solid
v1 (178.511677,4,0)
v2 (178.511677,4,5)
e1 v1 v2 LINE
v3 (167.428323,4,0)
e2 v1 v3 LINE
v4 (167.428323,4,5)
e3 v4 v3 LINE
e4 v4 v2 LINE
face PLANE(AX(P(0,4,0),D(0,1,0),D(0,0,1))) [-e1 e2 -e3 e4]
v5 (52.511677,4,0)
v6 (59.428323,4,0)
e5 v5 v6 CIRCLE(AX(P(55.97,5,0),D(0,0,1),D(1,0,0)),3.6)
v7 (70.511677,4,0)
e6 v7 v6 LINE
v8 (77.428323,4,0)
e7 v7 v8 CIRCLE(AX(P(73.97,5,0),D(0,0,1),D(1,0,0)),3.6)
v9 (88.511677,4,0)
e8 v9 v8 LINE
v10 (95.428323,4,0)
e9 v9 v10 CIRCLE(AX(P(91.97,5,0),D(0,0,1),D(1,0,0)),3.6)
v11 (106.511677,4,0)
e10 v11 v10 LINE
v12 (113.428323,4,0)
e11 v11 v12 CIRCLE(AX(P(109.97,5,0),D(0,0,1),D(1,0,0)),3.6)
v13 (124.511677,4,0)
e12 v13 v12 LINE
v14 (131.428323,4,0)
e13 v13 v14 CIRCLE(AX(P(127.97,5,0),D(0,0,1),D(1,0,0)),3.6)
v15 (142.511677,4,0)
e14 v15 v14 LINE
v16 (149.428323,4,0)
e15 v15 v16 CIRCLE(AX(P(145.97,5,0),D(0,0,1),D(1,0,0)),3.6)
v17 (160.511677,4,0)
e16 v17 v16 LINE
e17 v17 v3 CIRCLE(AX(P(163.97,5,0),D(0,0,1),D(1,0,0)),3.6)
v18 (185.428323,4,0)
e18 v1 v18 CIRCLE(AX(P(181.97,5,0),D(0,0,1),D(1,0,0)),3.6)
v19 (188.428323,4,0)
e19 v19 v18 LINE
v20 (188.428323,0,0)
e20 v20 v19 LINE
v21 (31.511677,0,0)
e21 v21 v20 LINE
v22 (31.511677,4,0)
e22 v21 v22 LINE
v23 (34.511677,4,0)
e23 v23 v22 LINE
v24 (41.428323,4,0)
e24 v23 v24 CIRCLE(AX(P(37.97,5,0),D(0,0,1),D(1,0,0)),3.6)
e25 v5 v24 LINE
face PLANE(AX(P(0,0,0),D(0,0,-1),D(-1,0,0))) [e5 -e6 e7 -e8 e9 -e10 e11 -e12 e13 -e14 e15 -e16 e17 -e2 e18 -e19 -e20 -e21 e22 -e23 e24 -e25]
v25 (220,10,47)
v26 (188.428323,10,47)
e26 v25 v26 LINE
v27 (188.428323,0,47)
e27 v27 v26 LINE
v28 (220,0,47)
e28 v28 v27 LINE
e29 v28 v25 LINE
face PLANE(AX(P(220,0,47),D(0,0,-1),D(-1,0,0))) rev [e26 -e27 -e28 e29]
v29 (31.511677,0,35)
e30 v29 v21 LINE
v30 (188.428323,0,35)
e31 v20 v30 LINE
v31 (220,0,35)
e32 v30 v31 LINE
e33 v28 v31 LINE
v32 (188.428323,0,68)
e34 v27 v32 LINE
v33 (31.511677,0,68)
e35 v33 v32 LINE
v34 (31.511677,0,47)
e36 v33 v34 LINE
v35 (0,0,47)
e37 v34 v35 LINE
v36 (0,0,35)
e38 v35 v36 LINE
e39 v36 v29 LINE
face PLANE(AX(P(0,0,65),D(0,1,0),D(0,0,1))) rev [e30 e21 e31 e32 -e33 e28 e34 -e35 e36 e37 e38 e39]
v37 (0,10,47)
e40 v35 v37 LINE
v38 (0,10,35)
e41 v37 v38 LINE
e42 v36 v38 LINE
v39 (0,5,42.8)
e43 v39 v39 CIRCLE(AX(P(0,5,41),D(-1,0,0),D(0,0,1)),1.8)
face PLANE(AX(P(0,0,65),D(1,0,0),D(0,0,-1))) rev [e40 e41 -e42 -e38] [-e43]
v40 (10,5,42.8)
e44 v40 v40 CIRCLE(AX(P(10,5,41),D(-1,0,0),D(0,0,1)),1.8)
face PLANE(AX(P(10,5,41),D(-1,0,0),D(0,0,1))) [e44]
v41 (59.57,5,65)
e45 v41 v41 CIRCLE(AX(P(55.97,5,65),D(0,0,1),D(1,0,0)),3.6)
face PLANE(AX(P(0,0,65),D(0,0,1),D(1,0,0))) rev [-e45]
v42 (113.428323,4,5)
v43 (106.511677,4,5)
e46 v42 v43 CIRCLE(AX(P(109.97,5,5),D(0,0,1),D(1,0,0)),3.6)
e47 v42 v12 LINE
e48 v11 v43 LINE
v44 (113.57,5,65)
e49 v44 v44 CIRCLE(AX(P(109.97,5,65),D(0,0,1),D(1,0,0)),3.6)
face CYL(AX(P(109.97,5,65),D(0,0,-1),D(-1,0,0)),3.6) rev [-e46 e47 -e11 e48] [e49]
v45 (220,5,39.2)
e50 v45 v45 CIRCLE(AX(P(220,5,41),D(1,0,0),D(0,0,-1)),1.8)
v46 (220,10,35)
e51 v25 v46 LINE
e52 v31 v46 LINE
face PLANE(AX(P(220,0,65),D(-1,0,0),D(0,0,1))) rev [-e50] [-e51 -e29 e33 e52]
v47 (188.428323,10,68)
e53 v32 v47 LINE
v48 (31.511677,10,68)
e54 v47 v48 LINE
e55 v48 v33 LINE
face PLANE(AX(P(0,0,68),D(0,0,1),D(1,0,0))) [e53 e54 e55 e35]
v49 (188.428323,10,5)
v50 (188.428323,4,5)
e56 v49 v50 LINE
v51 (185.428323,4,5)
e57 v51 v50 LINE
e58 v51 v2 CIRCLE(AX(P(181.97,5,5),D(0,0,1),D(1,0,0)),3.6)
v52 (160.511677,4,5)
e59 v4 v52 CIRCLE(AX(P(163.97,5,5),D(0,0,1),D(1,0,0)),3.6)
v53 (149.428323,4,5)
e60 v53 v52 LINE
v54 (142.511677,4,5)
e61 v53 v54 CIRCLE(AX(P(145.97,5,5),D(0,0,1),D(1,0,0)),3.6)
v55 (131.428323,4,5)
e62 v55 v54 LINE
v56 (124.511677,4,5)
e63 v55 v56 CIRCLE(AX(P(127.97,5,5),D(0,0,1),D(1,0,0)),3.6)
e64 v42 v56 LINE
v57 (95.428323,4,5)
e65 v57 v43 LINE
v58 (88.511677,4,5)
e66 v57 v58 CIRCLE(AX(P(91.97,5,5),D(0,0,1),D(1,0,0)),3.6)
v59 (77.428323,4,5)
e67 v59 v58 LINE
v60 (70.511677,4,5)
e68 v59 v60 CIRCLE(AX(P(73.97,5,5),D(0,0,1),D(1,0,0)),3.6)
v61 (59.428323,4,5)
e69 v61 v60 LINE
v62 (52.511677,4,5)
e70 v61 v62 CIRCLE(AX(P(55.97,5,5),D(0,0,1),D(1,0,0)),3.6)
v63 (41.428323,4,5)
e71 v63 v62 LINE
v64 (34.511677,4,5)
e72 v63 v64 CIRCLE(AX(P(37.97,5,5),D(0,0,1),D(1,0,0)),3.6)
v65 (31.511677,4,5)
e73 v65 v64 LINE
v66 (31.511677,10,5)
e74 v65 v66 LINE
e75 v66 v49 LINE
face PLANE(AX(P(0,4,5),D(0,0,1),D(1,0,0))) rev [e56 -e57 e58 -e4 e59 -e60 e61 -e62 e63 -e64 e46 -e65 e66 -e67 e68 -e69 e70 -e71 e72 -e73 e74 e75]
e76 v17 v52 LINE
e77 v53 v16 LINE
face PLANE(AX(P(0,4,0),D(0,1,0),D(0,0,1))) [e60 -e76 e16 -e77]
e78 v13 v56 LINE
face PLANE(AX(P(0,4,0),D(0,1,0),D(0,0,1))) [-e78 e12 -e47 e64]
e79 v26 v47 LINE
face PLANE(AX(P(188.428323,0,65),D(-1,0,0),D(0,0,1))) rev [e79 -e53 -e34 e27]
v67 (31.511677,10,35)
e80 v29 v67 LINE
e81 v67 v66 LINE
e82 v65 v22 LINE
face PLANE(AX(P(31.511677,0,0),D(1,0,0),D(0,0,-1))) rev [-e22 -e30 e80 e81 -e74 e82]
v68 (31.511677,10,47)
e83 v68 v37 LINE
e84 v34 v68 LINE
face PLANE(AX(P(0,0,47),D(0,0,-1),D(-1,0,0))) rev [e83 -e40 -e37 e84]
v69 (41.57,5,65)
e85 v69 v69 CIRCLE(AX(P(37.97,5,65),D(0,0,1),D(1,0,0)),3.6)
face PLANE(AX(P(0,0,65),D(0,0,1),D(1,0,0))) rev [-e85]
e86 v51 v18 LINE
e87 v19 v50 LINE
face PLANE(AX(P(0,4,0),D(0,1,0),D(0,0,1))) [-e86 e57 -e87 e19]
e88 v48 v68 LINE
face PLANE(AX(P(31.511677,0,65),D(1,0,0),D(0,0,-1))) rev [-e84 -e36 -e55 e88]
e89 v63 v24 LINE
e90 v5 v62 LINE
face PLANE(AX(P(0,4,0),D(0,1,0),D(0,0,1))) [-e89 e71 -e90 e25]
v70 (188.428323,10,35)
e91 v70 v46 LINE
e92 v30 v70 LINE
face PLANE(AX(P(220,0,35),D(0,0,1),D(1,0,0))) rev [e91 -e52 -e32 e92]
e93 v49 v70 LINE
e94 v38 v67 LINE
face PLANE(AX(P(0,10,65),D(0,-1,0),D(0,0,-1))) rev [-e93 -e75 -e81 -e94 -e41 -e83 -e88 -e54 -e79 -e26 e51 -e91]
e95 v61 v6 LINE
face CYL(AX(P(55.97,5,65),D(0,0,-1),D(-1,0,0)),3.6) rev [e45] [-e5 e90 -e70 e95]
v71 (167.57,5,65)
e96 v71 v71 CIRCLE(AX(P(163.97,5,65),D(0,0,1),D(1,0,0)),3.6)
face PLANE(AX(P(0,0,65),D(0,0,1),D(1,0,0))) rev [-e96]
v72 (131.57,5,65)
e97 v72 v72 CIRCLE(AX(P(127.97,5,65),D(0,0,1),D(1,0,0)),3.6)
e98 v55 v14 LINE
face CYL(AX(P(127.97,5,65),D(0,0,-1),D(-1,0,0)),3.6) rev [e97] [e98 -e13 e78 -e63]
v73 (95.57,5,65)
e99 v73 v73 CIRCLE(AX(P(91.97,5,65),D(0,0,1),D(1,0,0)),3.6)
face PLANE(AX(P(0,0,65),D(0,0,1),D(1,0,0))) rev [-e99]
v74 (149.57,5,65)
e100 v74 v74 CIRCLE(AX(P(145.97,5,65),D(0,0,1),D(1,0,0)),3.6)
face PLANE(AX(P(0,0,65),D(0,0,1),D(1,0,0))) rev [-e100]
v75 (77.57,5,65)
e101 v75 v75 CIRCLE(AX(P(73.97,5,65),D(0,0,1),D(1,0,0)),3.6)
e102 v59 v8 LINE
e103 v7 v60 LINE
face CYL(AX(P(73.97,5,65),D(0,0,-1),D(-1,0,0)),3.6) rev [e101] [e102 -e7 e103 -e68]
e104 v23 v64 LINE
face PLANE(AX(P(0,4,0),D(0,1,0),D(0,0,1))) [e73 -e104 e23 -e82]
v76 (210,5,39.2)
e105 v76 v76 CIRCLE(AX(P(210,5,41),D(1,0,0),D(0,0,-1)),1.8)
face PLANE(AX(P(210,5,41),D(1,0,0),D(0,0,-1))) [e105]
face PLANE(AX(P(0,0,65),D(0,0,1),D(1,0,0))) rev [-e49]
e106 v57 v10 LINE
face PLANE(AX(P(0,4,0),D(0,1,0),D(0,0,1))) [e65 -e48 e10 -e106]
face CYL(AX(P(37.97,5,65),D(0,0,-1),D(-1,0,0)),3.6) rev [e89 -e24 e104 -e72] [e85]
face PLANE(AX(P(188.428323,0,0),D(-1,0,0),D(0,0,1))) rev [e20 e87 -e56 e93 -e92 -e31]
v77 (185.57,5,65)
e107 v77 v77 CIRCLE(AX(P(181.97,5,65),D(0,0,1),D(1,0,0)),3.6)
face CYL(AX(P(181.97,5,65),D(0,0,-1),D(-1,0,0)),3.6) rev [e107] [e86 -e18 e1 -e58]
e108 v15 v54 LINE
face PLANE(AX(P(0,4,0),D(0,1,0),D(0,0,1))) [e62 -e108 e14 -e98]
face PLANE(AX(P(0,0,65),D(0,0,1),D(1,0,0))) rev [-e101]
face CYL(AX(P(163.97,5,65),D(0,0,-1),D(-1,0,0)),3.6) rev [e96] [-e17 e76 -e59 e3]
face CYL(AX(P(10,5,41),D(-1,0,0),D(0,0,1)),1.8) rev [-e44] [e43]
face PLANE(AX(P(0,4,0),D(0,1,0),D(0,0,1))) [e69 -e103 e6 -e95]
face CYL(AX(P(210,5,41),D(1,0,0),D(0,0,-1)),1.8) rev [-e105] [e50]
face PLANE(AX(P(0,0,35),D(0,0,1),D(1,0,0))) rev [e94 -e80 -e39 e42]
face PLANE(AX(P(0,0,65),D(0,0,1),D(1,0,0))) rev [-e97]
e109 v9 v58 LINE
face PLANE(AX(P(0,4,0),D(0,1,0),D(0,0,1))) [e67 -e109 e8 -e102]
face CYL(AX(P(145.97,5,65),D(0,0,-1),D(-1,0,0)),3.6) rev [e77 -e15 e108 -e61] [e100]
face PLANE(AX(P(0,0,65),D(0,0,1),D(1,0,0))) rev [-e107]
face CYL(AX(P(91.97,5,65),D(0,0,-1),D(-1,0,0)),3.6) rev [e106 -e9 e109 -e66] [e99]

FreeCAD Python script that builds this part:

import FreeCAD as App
import Part
import Sketcher

V = App.Vector
Q = App.Units.Quantity

doc = App.newDocument("Part")
body = doc.addObject("PartDesign::Body", "Body")

# Sketch on XY plane
sketch1 = body.newObject("Sketcher::SketchObject", "Sketch")
sketch1.AttachmentSupport = (doc.getObject("XY_Plane"), [""])
sketch1.MapMode = "FlatFace"
sketch1.addGeometry(Part.LineSegment(V(0, 10, 0), V(0, 0, 0)), False)
sketch1.addGeometry(Part.LineSegment(V(0, 0, 0), V(220, 0, 0)), False)
sketch1.addGeometry(Part.LineSegment(V(220, 0, 0), V(220, 10, 0)), False)
sketch1.addGeometry(Part.LineSegment(V(220, 10, 0), V(0, 10, 0)), False)
sketch1.addGeometry(Part.Circle(V(37.97, 5, 0), V(0, 0, 1), 3.6), False)
sketch1.addGeometry(Part.Circle(V(55.97, 5, 0), V(0, 0, 1), 3.6), False)
sketch1.addGeometry(Part.Circle(V(73.97, 5, 0), V(0, 0, 1), 3.6), False)
sketch1.addGeometry(Part.Circle(V(91.97, 5, 0), V(0, 0, 1), 3.6), False)
sketch1.addGeometry(Part.Circle(V(109.97, 5, 0), V(0, 0, 1), 3.6), False)
sketch1.addGeometry(Part.Circle(V(127.97, 5, 0), V(0, 0, 1), 3.6), False)
sketch1.addGeometry(Part.Circle(V(145.97, 5, 0), V(0, 0, 1), 3.6), False)
sketch1.addGeometry(Part.Circle(V(163.97, 5, 0), V(0, 0, 1), 3.6), False)
sketch1.addGeometry(Part.Circle(V(181.97, 5, 0), V(0, 0, 1), 3.6), False)
sketch1.addConstraint(Sketcher.Constraint("Coincident", 0, 2, 1, 1))
sketch1.addConstraint(Sketcher.Constraint("Coincident", 1, 2, 2, 1))
sketch1.addConstraint(Sketcher.Constraint("Coincident", 2, 2, 3, 1))
sketch1.addConstraint(Sketcher.Constraint("Coincident", 3, 2, 0, 1))
sketch1.addConstraint(Sketcher.Constraint("Vertical", 0))
sketch1.addConstraint(Sketcher.Constraint("Horizontal", 1))
sketch1.addConstraint(Sketcher.Constraint("Vertical", 2))
sketch1.addConstraint(Sketcher.Constraint("Horizontal", 3))
sketch1.addConstraint(Sketcher.Constraint("Coincident", 0, 2, -1, 1))
sketch1.addConstraint(Sketcher.Constraint("Equal", 4, 5))
sketch1.addConstraint(Sketcher.Constraint("Equal", 5, 6))
sketch1.addConstraint(Sketcher.Constraint("Equal", 6, 7))
sketch1.addConstraint(Sketcher.Constraint("Equal", 7, 8))
sketch1.addConstraint(Sketcher.Constraint("Equal", 8, 9))
sketch1.addConstraint(Sketcher.Constraint("Equal", 9, 10))
sketch1.addConstraint(Sketcher.Constraint("Equal", 10, 11))
sketch1.addConstraint(Sketcher.Constraint("Equal", 11, 12))
sketch1.addConstraint(Sketcher.Constraint("Horizontal", 4, 3, 5, 3))
sketch1.addConstraint(Sketcher.Constraint("Horizontal", 5, 3, 6, 3))
sketch1.addConstraint(Sketcher.Constraint("Horizontal", 6, 3, 7, 3))
sketch1.addConstraint(Sketcher.Constraint("Horizontal", 7, 3, 8, 3))
sketch1.addConstraint(Sketcher.Constraint("Horizontal", 8, 3, 9, 3))
sketch1.addConstraint(Sketcher.Constraint("Horizontal", 9, 3, 10, 3))
sketch1.addConstraint(Sketcher.Constraint("Horizontal", 10, 3, 11, 3))
sketch1.addConstraint(Sketcher.Constraint("Horizontal", 11, 3, 12, 3))
sketch1.addConstraint(Sketcher.Constraint("Diameter", 4, Q("7.2 mm")))
sketch1.addConstraint(Sketcher.Constraint("DistanceX", 1, 1, 1, 2, Q("220 mm")))
sketch1.addConstraint(Sketcher.Constraint("DistanceY", 0, 2, 0, 1, Q("10 mm")))
sketch1.addConstraint(Sketcher.Constraint("DistanceY", -1, 1, 4, 3, Q("5 mm")))
sketch1.addConstraint(Sketcher.Constraint("DistanceX", 4, 3, 5, 3, Q("18 mm")))
sketch1.addConstraint(Sketcher.Constraint("DistanceX", 5, 3, 6, 3, Q("18 mm")))
sketch1.addConstraint(Sketcher.Constraint("DistanceX", 6, 3, 7, 3, Q("18 mm")))
sketch1.addConstraint(Sketcher.Constraint("DistanceX", 7, 3, 8, 3, Q("18 mm")))
sketch1.addConstraint(Sketcher.Constraint("DistanceX", 8, 3, 9, 3, Q("18 mm")))
sketch1.addConstraint(Sketcher.Constraint("DistanceX", 9, 3, 10, 3, Q("18 mm")))
sketch1.addConstraint(Sketcher.Constraint("DistanceX", 10, 3, 11, 3, Q("18 mm")))
sketch1.addConstraint(Sketcher.Constraint("DistanceX", 11, 3, 12, 3, Q("18 mm")))
sketch1.addConstraint(Sketcher.Constraint("DistanceX", -1, 1, 4, 3, Q("37.97 mm")))
pad1 = body.newObject("PartDesign::Pad", "Pad")
pad1.Profile = sketch1
pad1.Length = 65

# Sketch on XZ plane
sketch2 = body.newObject("Sketcher::SketchObject", "Sketch001")
sketch2.AttachmentSupport = (doc.getObject("XZ_Plane"), [""])
sketch2.MapMode = "FlatFace"
sketch2.AttachmentOffset = App.Placement(V(0, 0, -10), App.Rotation())
sketch2.addGeometry(Part.LineSegment(V(0, 0, 0), V(0, 5, 0)), False)
sketch2.addGeometry(Part.LineSegment(V(0, 5, 0), V(220, 5, 0)), False)
sketch2.addGeometry(Part.LineSegment(V(220, 5, 0), V(220, 0, 0)), False)
sketch2.addGeometry(Part.LineSegment(V(220, 0, 0), V(0, 0, 0)), False)
sketch2.addConstraint(Sketcher.Constraint("Coincident", 0, 2, 1, 1))
sketch2.addConstraint(Sketcher.Constraint("Coincident", 1, 2, 2, 1))
sketch2.addConstraint(Sketcher.Constraint("Coincident", 2, 2, 3, 1))
sketch2.addConstraint(Sketcher.Constraint("Coincident", 3, 2, 0, 1))
sketch2.addConstraint(Sketcher.Constraint("Vertical", 0))
sketch2.addConstraint(Sketcher.Constraint("Horizontal", 1))
sketch2.addConstraint(Sketcher.Constraint("Vertical", 2))
sketch2.addConstraint(Sketcher.Constraint("Horizontal", 3))
sketch2.addConstraint(Sketcher.Constraint("Coincident", 3, 2, -1, 1))
sketch2.addConstraint(Sketcher.Constraint("DistanceX", 1, 1, 1, 2, Q("220 mm")))
sketch2.addConstraint(Sketcher.Constraint("DistanceY", 0, 1, 0, 2, Q("5 mm")))
pocket1 = body.newObject("PartDesign::Pocket", "Pocket")
pocket1.Profile = sketch2
pocket1.Length = 6
pocket1.Reversed = True

# Sketch on XZ plane
sketch3 = body.newObject("Sketcher::SketchObject", "Sketch002")
sketch3.AttachmentSupport = (doc.getObject("XZ_Plane"), [""])
sketch3.MapMode = "FlatFace"
sketch3.AttachmentOffset = App.Placement(V(0, 0, -10), App.Rotation())
sketch3.addGeometry(Part.LineSegment(V(0, 0, 0), V(0, 35, 0)), False)
sketch3.addGeometry(Part.LineSegment(V(0, 35, 0), V(31.511677, 35, 0)), False)
sketch3.addGeometry(Part.LineSegment(V(31.511677, 35, 0), V(31.511677, 0, 0)), False)
sketch3.addGeometry(Part.LineSegment(V(31.511677, 0, 0), V(0, 0, 0)), False)
sketch3.addGeometry(Part.LineSegment(V(0, 47, 0), V(0, 65, 0)), False)
sketch3.addGeometry(Part.LineSegment(V(0, 65, 0), V(31.511677, 65, 0)), False)
sketch3.addGeometry(Part.LineSegment(V(31.511677, 65, 0), V(31.511677, 47, 0)), False)
sketch3.addGeometry(Part.LineSegment(V(31.511677, 47, 0), V(0, 47, 0)), False)
sketch3.addGeometry(Part.LineSegment(V(188.428323, 0, 0), V(188.428323, 35, 0)), False)
sketch3.addGeometry(Part.LineSegment(V(188.428323, 35, 0), V(220, 35, 0)), False)
sketch3.addGeometry(Part.LineSegment(V(220, 35, 0), V(220, 0, 0)), False)
sketch3.addGeometry(Part.LineSegment(V(220, 0, 0), V(188.428323, 0, 0)), False)
sketch3.addGeometry(Part.LineSegment(V(188.428323, 47, 0), V(188.428323, 65, 0)), False)
sketch3.addGeometry(Part.LineSegment(V(188.428323, 65, 0), V(220, 65, 0)), False)
sketch3.addGeometry(Part.LineSegment(V(220, 65, 0), V(220, 47, 0)), False)
sketch3.addGeometry(Part.LineSegment(V(220, 47, 0), V(188.428323, 47, 0)), False)
sketch3.addConstraint(Sketcher.Constraint("Coincident", 0, 2, 1, 1))
sketch3.addConstraint(Sketcher.Constraint("Coincident", 1, 2, 2, 1))
sketch3.addConstraint(Sketcher.Constraint("Coincident", 2, 2, 3, 1))
sketch3.addConstraint(Sketcher.Constraint("Coincident", 3, 2, 0, 1))
sketch3.addConstraint(Sketcher.Constraint("Coincident", 4, 2, 5, 1))
sketch3.addConstraint(Sketcher.Constraint("Coincident", 5, 2, 6, 1))
sketch3.addConstraint(Sketcher.Constraint("Coincident", 6, 2, 7, 1))
sketch3.addConstraint(Sketcher.Constraint("Coincident", 7, 2, 4, 1))
sketch3.addConstraint(Sketcher.Constraint("Coincident", 8, 2, 9, 1))
sketch3.addConstraint(Sketcher.Constraint("Coincident", 9, 2, 10, 1))
sketch3.addConstraint(Sketcher.Constraint("Coincident", 10, 2, 11, 1))
sketch3.addConstraint(Sketcher.Constraint("Coincident", 11, 2, 8, 1))
sketch3.addConstraint(Sketcher.Constraint("Coincident", 12, 2, 13, 1))
sketch3.addConstraint(Sketcher.Constraint("Coincident", 13, 2, 14, 1))
sketch3.addConstraint(Sketcher.Constraint("Coincident", 14, 2, 15, 1))
sketch3.addConstraint(Sketcher.Constraint("Coincident", 15, 2, 12, 1))
sketch3.addConstraint(Sketcher.Constraint("Vertical", 0))
sketch3.addConstraint(Sketcher.Constraint("Horizontal", 1))
sketch3.addConstraint(Sketcher.Constraint("Vertical", 2))
sketch3.addConstraint(Sketcher.Constraint("Horizontal", 3))
sketch3.addConstraint(Sketcher.Constraint("Vertical", 4))
sketch3.addConstraint(Sketcher.Constraint("Horizontal", 5))
sketch3.addConstraint(Sketcher.Constraint("Vertical", 6))
sketch3.addConstraint(Sketcher.Constraint("Horizontal", 7))
sketch3.addConstraint(Sketcher.Constraint("Vertical", 8))
sketch3.addConstraint(Sketcher.Constraint("Horizontal", 9))
sketch3.addConstraint(Sketcher.Constraint("Vertical", 10))
sketch3.addConstraint(Sketcher.Constraint("Horizontal", 11))
sketch3.addConstraint(Sketcher.Constraint("Vertical", 12))
sketch3.addConstraint(Sketcher.Constraint("Horizontal", 13))
sketch3.addConstraint(Sketcher.Constraint("Vertical", 14))
sketch3.addConstraint(Sketcher.Constraint("Horizontal", 15))
sketch3.addConstraint(Sketcher.Constraint("Coincident", 3, 2, -1, 1))
sketch3.addConstraint(Sketcher.Constraint("PointOnObject", 4, 2, -2))
sketch3.addConstraint(Sketcher.Constraint("PointOnObject", 10, 2, -1))
sketch3.addConstraint(Sketcher.Constraint("Horizontal", 1, 2, 8, 2))
sketch3.addConstraint(Sketcher.Constraint("Horizontal", 5, 2, 12, 2))
sketch3.addConstraint(Sketcher.Constraint("Horizontal", 7, 2, 14, 2))
sketch3.addConstraint(Sketcher.Constraint("Vertical", 2, 2, 5, 2))
sketch3.addConstraint(Sketcher.Constraint("Vertical", 11, 2, 12, 2))
sketch3.addConstraint(Sketcher.Constraint("Vertical", 10, 2, 13, 2))
sketch3.addConstraint(Sketcher.Constraint("DistanceY", 0, 1, 0, 2, Q("35 mm")))
sketch3.addConstraint(Sketcher.Constraint("DistanceY", 4, 1, 4, 2, Q("18 mm")))
sketch3.addConstraint(Sketcher.Constraint("DistanceY", -1, 1, 4, 2, Q("65 mm")))
sketch3.addConstraint(Sketcher.Constraint("DistanceX", -1, 1, 9, 2, Q("220 mm")))
sketch3.addConstraint(Sketcher.Constraint("DistanceX", 1, 1, 1, 2, Q("31.511677 mm")))
sketch3.addConstraint(Sketcher.Constraint("DistanceX", 9, 1, 9, 2, Q("31.571677 mm")))
pocket2 = body.newObject("PartDesign::Pocket", "Pocket001")
pocket2.Profile = sketch3
pocket2.Type = "ThroughAll"
pocket2.Reversed = True

# Sketch on YZ plane
sketch4 = body.newObject("Sketcher::SketchObject", "Sketch003")
sketch4.AttachmentSupport = (doc.getObject("YZ_Plane"), [""])
sketch4.MapMode = "FlatFace"
sketch4.addGeometry(Part.Circle(V(5, 41, 0), V(0, 0, 1), 1.8), False)
sketch4.addConstraint(Sketcher.Constraint("Diameter", 0, Q("3.6 mm")))
sketch4.addConstraint(Sketcher.Constraint("DistanceX", -1, 1, 0, 3, Q("5 mm")))
sketch4.addConstraint(Sketcher.Constraint("DistanceY", -1, 1, 0, 3, Q("41 mm")))
pocket3 = body.newObject("PartDesign::Pocket", "Pocket002")
pocket3.Profile = sketch4
pocket3.Length = 10
pocket3.Reversed = True

# Sketch on YZ plane
sketch5 = body.newObject("Sketcher::SketchObject", "Sketch004")
sketch5.AttachmentSupport = (doc.getObject("YZ_Plane"), [""])
sketch5.MapMode = "FlatFace"
sketch5.AttachmentOffset = App.Placement(V(0, 0, 210), App.Rotation())
sketch5.addGeometry(Part.Circle(V(5, 41, 0), V(0, 0, 1), 1.8), False)
sketch5.addConstraint(Sketcher.Constraint("Diameter", 0, Q("3.6 mm")))
sketch5.addConstraint(Sketcher.Constraint("DistanceX", -1, 1, 0, 3, Q("5 mm")))
sketch5.addConstraint(Sketcher.Constraint("DistanceY", -1, 1, 0, 3, Q("41 mm")))
pocket4 = body.newObject("PartDesign::Pocket", "Pocket003")
pocket4.Profile = sketch5
pocket4.Length = 10
pocket4.Reversed = True

# Sketch on XY plane
sketch6 = body.newObject("Sketcher::SketchObject", "Sketch005")
sketch6.AttachmentSupport = (doc.getObject("XY_Plane"), [""])
sketch6.MapMode = "FlatFace"
sketch6.AttachmentOffset = App.Placement(V(0, 0, 65), App.Rotation())
sketch6.addGeometry(Part.LineSegment(V(31.511677, 10, 0), V(31.511677, 0, 0)), False)
sketch6.addGeometry(Part.LineSegment(V(31.511677, 0, 0), V(188.428323, 0, 0)), False)
sketch6.addGeometry(Part.LineSegment(V(188.428323, 0, 0), V(188.428323, 10, 0)), False)
sketch6.addGeometry(Part.LineSegment(V(188.428323, 10, 0), V(31.511677, 10, 0)), False)
sketch6.addConstraint(Sketcher.Constraint("Coincident", 0, 2, 1, 1))
sketch6.addConstraint(Sketcher.Constraint("Coincident", 1, 2, 2, 1))
sketch6.addConstraint(Sketcher.Constraint("Coincident", 2, 2, 3, 1))
sketch6.addConstraint(Sketcher.Constraint("Coincident", 3, 2, 0, 1))
sketch6.addConstraint(Sketcher.Constraint("Vertical", 0))
sketch6.addConstraint(Sketcher.Constraint("Horizontal", 1))
sketch6.addConstraint(Sketcher.Constraint("Vertical", 2))
sketch6.addConstraint(Sketcher.Constraint("Horizontal", 3))
sketch6.addConstraint(Sketcher.Constraint("PointOnObject", 0, 2, -1))
sketch6.addConstraint(Sketcher.Constraint("DistanceY", 0, 2, 0, 1, Q("10 mm")))
sketch6.addConstraint(Sketcher.Constraint("DistanceX", 1, 1, 1, 2, Q("156.916647 mm")))
sketch6.addConstraint(Sketcher.Constraint("DistanceX", -1, 1, 0, 2, Q("31.511677 mm")))
pad2 = body.newObject("PartDesign::Pad", "Pad001")
pad2.Profile = sketch6
pad2.Length = 3

doc.recompute()
